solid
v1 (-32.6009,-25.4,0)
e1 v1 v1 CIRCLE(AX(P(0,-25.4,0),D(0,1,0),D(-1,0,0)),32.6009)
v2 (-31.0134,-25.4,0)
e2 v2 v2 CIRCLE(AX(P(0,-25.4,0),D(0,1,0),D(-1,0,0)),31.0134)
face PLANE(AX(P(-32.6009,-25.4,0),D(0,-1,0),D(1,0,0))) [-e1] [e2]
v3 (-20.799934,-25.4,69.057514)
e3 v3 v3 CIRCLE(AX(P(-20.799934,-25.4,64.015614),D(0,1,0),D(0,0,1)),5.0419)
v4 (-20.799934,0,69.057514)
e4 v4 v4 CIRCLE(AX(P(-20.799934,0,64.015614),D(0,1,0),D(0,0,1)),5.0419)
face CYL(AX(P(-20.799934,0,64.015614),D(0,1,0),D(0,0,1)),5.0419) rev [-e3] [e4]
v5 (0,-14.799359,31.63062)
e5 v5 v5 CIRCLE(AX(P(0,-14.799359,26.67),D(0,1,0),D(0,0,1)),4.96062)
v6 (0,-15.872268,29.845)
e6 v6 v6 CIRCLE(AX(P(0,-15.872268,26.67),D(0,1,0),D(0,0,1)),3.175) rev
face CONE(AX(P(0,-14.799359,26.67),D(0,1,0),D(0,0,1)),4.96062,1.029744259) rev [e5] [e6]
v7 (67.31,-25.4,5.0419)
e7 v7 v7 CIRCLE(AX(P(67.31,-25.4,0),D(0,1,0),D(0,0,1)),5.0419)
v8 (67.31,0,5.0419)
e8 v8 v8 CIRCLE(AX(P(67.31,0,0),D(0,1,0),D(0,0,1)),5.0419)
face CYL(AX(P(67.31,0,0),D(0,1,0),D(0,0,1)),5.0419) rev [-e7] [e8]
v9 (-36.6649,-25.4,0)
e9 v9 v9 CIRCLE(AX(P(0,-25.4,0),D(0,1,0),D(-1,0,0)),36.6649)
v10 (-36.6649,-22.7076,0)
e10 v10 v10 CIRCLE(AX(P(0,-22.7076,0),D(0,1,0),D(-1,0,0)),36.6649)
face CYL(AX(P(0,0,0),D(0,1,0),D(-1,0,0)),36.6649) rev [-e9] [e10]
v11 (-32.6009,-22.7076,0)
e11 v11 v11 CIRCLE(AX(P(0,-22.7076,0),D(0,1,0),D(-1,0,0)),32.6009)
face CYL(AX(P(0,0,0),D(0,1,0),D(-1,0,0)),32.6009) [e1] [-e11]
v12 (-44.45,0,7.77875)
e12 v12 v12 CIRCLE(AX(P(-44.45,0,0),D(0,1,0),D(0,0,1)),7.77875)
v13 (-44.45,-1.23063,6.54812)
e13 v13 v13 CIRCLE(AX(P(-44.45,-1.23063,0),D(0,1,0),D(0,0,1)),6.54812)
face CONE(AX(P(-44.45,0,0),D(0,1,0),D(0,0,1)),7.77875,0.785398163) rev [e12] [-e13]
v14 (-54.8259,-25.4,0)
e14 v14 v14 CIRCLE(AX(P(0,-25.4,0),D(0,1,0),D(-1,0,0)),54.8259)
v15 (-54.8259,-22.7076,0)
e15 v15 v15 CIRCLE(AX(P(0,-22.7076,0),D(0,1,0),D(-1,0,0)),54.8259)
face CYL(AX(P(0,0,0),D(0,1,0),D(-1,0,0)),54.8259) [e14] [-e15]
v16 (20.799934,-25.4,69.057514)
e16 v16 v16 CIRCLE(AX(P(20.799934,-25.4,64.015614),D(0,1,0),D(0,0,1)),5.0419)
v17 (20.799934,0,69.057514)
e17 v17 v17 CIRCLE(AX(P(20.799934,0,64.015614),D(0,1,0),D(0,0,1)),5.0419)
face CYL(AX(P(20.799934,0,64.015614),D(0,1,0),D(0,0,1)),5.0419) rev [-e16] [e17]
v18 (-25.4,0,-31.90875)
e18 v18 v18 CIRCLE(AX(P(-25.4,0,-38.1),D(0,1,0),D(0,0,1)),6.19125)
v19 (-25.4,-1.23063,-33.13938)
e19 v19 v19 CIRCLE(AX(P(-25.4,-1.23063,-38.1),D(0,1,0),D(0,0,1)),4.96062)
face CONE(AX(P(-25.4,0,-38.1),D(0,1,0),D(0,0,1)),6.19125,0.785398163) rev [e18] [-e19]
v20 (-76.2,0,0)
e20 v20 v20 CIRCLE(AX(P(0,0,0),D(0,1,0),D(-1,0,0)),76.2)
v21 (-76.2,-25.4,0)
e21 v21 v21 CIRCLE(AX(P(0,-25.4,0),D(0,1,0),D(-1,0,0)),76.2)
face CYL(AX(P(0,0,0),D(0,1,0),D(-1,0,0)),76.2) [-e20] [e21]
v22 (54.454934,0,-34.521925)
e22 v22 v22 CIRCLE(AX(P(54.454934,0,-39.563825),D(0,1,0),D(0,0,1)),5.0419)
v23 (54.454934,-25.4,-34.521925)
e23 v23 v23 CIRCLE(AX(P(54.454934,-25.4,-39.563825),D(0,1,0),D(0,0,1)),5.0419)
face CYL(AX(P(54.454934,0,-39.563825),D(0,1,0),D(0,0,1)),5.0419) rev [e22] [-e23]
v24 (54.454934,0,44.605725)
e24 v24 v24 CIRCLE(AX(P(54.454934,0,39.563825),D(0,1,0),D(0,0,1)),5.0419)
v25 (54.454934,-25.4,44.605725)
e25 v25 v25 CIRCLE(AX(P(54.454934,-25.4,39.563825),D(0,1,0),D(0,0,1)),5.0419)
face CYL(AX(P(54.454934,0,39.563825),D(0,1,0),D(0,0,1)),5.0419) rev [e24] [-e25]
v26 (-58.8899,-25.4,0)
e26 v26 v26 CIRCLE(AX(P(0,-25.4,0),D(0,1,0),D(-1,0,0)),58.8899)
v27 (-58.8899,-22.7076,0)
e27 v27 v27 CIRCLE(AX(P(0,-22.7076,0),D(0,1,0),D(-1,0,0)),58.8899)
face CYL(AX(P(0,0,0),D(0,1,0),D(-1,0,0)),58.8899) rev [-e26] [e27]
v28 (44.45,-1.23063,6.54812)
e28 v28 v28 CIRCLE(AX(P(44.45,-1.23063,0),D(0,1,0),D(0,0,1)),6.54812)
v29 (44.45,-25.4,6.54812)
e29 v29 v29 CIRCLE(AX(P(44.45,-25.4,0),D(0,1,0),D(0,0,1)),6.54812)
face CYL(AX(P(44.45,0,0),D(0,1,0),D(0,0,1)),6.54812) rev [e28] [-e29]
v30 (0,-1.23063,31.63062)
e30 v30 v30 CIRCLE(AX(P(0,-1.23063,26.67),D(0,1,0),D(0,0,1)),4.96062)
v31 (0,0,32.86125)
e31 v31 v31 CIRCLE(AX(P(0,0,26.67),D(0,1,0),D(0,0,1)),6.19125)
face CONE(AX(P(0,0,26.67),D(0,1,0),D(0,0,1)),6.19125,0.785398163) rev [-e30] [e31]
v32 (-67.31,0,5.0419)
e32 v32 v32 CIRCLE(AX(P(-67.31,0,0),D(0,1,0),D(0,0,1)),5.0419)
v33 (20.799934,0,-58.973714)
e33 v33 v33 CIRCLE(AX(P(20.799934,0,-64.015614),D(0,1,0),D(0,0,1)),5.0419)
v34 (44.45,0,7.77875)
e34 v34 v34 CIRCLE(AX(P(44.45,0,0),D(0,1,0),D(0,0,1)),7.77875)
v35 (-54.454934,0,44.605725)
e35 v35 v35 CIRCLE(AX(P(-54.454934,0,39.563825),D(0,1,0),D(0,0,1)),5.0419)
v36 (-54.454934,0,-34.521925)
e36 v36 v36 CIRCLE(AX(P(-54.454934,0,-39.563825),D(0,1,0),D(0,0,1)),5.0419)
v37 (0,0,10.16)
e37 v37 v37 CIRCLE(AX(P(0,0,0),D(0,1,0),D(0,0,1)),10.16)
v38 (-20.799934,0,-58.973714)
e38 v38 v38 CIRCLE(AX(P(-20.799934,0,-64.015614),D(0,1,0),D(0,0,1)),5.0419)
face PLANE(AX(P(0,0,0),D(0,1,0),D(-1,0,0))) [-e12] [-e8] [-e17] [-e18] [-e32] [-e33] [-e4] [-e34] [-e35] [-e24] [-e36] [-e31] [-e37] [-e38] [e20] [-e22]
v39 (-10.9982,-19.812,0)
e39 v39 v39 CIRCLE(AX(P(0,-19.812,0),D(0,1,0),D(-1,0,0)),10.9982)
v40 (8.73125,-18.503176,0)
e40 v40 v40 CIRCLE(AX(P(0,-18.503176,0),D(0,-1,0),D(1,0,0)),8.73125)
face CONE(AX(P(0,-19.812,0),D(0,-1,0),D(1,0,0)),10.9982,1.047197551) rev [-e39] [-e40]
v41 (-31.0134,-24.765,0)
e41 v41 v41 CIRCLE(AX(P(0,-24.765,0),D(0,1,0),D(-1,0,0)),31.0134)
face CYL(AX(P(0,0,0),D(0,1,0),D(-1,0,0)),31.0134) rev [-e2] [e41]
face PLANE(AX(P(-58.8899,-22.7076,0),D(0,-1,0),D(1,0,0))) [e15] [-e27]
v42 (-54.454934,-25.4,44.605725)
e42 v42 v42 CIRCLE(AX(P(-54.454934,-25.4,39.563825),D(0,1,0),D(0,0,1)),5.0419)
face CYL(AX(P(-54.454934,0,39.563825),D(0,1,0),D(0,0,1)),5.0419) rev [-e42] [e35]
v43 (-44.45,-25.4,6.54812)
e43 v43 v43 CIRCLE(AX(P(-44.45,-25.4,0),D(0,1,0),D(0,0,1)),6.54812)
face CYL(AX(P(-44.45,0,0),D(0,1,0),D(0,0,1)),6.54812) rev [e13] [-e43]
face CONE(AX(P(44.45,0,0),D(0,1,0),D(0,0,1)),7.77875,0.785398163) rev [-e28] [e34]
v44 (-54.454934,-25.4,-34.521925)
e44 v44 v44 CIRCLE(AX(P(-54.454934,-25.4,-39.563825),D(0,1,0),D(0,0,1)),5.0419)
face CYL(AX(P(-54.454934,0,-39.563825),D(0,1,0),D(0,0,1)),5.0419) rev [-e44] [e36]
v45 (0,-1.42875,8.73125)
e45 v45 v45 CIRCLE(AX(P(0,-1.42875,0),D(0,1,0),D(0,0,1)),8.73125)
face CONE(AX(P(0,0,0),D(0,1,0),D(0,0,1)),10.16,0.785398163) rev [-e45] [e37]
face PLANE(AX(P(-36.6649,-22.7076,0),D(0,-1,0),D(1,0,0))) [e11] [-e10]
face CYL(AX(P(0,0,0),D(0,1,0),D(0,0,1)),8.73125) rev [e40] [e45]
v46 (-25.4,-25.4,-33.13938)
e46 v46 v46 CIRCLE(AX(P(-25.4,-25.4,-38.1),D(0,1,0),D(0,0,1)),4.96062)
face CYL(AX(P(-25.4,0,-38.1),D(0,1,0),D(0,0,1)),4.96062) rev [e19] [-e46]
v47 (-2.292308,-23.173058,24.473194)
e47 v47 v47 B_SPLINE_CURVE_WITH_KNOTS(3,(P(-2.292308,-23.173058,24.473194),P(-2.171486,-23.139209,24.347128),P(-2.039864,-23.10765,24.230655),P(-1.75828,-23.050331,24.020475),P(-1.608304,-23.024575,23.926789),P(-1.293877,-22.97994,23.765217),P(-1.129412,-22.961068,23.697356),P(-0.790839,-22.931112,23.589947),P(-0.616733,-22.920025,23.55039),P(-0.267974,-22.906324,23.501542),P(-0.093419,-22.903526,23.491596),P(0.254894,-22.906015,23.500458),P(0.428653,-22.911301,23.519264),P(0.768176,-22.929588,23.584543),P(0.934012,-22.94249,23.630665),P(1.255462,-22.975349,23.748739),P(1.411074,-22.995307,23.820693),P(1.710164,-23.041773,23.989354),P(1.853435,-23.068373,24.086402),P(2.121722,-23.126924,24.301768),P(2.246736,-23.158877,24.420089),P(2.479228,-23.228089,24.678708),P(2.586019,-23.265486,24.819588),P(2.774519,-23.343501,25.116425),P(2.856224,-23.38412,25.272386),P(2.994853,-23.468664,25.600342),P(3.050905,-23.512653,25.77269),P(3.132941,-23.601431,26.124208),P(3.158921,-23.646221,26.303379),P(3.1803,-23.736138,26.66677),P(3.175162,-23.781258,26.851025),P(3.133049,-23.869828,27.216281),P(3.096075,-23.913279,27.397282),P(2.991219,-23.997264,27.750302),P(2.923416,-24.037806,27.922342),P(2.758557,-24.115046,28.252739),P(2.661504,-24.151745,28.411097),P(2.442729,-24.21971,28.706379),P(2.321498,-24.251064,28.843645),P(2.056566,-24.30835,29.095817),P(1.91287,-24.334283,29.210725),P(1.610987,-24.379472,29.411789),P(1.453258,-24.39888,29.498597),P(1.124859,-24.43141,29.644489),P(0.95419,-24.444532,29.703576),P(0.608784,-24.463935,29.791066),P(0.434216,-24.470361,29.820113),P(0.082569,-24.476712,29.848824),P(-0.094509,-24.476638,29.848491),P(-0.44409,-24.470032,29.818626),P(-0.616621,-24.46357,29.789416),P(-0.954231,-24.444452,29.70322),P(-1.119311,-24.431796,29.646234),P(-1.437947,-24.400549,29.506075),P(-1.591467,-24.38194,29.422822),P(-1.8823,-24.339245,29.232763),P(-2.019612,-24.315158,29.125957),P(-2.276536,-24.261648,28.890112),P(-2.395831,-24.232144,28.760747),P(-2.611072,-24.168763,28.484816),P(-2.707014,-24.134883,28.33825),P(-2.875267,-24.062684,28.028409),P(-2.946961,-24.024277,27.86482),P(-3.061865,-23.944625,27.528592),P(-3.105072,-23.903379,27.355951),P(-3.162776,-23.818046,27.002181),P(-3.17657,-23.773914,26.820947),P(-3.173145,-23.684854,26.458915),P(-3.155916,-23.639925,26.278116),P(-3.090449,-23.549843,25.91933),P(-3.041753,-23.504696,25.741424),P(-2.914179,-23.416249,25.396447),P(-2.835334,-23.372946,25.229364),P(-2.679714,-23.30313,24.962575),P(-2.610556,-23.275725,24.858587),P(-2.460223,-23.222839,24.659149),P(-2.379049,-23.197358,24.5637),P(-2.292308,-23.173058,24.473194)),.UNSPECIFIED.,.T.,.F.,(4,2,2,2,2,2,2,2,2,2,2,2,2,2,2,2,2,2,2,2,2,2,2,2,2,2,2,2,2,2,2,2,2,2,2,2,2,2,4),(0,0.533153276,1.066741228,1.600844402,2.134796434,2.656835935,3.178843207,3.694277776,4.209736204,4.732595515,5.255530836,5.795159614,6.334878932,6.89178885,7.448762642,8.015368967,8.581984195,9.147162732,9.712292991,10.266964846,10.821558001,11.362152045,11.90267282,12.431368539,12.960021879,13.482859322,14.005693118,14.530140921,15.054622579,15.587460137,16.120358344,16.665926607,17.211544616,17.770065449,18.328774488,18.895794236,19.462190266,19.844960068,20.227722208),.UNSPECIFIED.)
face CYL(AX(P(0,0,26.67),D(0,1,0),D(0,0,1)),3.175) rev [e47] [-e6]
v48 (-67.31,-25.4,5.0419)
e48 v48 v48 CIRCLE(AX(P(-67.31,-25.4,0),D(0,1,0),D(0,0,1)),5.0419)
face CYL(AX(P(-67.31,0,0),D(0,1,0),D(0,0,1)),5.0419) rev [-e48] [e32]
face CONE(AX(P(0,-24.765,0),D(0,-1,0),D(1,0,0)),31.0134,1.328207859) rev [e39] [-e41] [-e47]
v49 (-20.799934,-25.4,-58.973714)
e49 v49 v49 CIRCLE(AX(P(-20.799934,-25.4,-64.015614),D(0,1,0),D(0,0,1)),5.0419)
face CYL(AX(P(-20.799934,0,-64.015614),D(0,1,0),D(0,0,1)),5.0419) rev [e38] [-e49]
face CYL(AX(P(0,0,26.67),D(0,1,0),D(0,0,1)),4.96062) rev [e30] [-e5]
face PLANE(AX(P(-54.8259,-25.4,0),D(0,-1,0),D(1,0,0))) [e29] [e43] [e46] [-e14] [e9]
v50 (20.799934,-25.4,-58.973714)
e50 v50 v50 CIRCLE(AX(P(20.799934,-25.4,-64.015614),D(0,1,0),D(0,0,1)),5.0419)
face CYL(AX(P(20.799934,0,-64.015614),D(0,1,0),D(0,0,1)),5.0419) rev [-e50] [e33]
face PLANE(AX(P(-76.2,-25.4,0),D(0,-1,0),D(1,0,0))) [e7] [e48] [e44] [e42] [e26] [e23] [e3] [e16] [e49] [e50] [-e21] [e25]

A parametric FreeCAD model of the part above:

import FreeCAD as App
import Part
import Sketcher

V = App.Vector
Q = App.Units.Quantity


def add_polygon(sketch, points):
    """Adds a closed chain of lines whose ends are joined by coincident constraints."""
    first, n = sketch.GeometryCount, len(points)
    for a, b in zip(points, points[1:] + points[:1]):
        sketch.addGeometry(Part.LineSegment(App.Vector(*a, 0), App.Vector(*b, 0)), False)
    for i in range(n):
        sketch.addConstraint(Sketcher.Constraint("Coincident", first + i, 2, first + (i + 1) % n, 1))

doc = App.newDocument("Part")
params = doc.addObject("Spreadsheet::Sheet", "Params")
for row, (alias, value) in enumerate([
    ("sketch1_width", "3 in"),
    ("sketch1_height", "1 in"),
    ("sketch1_width2", "0.16 in"),
    ("sketch1_width3", "0.715 in"),
    ("sketch1_width4", "0.0625 in"),
    ("revolution_angle", "360 deg"),
    ("sketch2_diameter", "0.6875 in"),
    ("hole_diameter", "0.6875 in"),
    ("hole_csink_diameter", "0.8 in"),
    ("hole2_diameter", "0.5156 in"),
    ("hole2_csink_diameter", "0.6125 in"),
    ("sketch4_diameter", "0.397 in"),
    ("hole3_diameter", "0.397 in"),
    ("hole4_diameter", "0.3906 in"),
    ("hole4_depth", "14.799359 mm"),
    ("hole4_csink_diameter", "0.4875 in"),
    ("hole5_diameter", "0.3906 in"),
    ("hole5_csink_diameter", "0.4875 in"),
    ("sketch7_diameter", "0.25 in"),
    ("hole6_diameter", "0.25 in"),
    ("hole6_depth", "72.260268 mm"),
], start=1):
    params.set(f"A{row}", alias)
    params.set(f"B{row}", "=" + value)
    params.setAlias(f"B{row}", alias)

body = doc.addObject("PartDesign::Body", "Body")

sketch1 = body.newObject("Sketcher::SketchObject", "Sketch")
sketch1.AttachmentSupport = (doc.getObject("XY_Plane"), [""])
sketch1.MapMode = "FlatFace"
add_polygon(sketch1, [(0, 0), (-76.2, 0), (-76.2, -25.4), (-58.9, -25.4), (-58.9, -22.7), (-54.8, -22.7), (-54.8, -25.4), (-36.7, -25.4), (-36.7, -22.7), (-32.6, -22.7), (-32.6, -25.4), (-31, -25.4), (-31, -24.8), (-11, -19.8), (0, -13.5)])
sketch1.addConstraint(Sketcher.Constraint("Horizontal", 0))
sketch1.addConstraint(Sketcher.Constraint("Vertical", 1))
sketch1.addConstraint(Sketcher.Constraint("Horizontal", 2))
sketch1.addConstraint(Sketcher.Constraint("Vertical", 3))
sketch1.addConstraint(Sketcher.Constraint("Horizontal", 4))
sketch1.addConstraint(Sketcher.Constraint("Vertical", 5))
sketch1.addConstraint(Sketcher.Constraint("Horizontal", 6))
sketch1.addConstraint(Sketcher.Constraint("Vertical", 7))
sketch1.addConstraint(Sketcher.Constraint("Horizontal", 8))
sketch1.addConstraint(Sketcher.Constraint("Vertical", 9))
sketch1.addConstraint(Sketcher.Constraint("Horizontal", 10))
sketch1.addConstraint(Sketcher.Constraint("Vertical", 11))
sketch1.addConstraint(Sketcher.Constraint("Vertical", 14))
sketch1.addConstraint(Sketcher.Constraint("Coincident", 14, 2, -1, 1))
sketch1.addConstraint(Sketcher.Constraint("Horizontal", 2, 2, 5, 2))
sketch1.addConstraint(Sketcher.Constraint("Horizontal", 4, 2, 7, 2))
sketch1.addConstraint(Sketcher.Constraint("Horizontal", 6, 2, 9, 2))
sketch1.addConstraint(Sketcher.Constraint("Equal", 4, 8))
sketch1.addConstraint(Sketcher.Constraint("DistanceX", 0, 2, 0, 1, Q("3 in")))
sketch1.addConstraint(Sketcher.Constraint("DistanceY", 1, 2, 1, 1, Q("1 in")))
sketch1.addConstraint(Sketcher.Constraint("Angle", 13, Q("30 deg")))
sketch1.addConstraint(Sketcher.Constraint("DistanceX", 4, 1, 4, 2, Q("0.16 in")))
sketch1.addConstraint(Sketcher.Constraint("DistanceX", 6, 1, 6, 2, Q("0.715 in")))
sketch1.addConstraint(Sketcher.Constraint("DistanceX", 10, 1, 10, 2, Q("0.0625 in")))
sketch1.addConstraint(Sketcher.Constraint("DistanceY", 3, 1, 3, 2, Q("0.106 in")))
sketch1.addConstraint(Sketcher.Constraint("DistanceY", 11, 1, 11, 2, Q("0.025 in")))
sketch1.addConstraint(Sketcher.Constraint("DistanceY", 12, 2, -1, 1, Q("0.78 in")))
sketch1.addConstraint(Sketcher.Constraint("DistanceX", 2, 1, 2, 2, Q("0.6815 in")))
sketch1.addConstraint(Sketcher.Constraint("DistanceX", 12, 2, -1, 1, Q("0.433 in")))
sketch1.setExpression("Constraints[33]", "Params.sketch1_width")
sketch1.setExpression("Constraints[34]", "Params.sketch1_height")
sketch1.setExpression("Constraints[36]", "Params.sketch1_width2")
sketch1.setExpression("Constraints[37]", "Params.sketch1_width3")
sketch1.setExpression("Constraints[38]", "Params.sketch1_width4")
revolution = body.newObject("PartDesign::Revolution", "Revolution")
revolution.Profile = sketch1
revolution.ReferenceAxis = (sketch1, ["V_Axis"])
revolution.setExpression("Angle", "Params.revolution_angle")

sketch2 = body.newObject("Sketcher::SketchObject", "Sketch001")
sketch2.AttachmentSupport = (doc.getObject("XZ_Plane"), [""])
sketch2.MapMode = "FlatFace"
sketch2.addGeometry(Part.Circle(V(0, 0, 0), V(0, 0, 1), 9), False)
sketch2.addConstraint(Sketcher.Constraint("Coincident", 0, 3, -1, 1))
sketch2.addConstraint(Sketcher.Constraint("Diameter", 0, Q("0.6875 in")))
sketch2.setExpression("Constraints[1]", "Params.sketch2_diameter")
doc.recompute()
hole = body.newObject("PartDesign::Hole", "Hole")
hole.Profile = sketch2
hole.ThreadType = "None"
hole.setExpression("Diameter", "Params.hole_diameter")
hole.DepthType = "ThroughAll"
hole.HoleCutType = "Countersink"
hole.setExpression("HoleCutDiameter", "Params.hole_csink_diameter")
hole.HoleCutCountersinkAngle = 90
hole.Reversed = True

sketch3 = body.newObject("Sketcher::SketchObject", "Sketch002")
sketch3.AttachmentSupport = (doc.getObject("XZ_Plane"), [""])
sketch3.MapMode = "FlatFace"
sketch3.addGeometry(Part.Circle(V(-44, 0, 0), V(0, 0, 1), 7), False)
sketch3.addGeometry(Part.Circle(V(44, 0, 0), V(0, 0, 1), 7), False)
sketch3.addConstraint(Sketcher.Constraint("Equal", 0, 1))
sketch3.addConstraint(Sketcher.Constraint("Symmetric", 0, 3, 1, 3, -1, 1))
sketch3.addConstraint(Sketcher.Constraint("PointOnObject", 0, 3, -1))
sketch3.addConstraint(Sketcher.Constraint("Diameter", 0, Q("0.5156 in")))
sketch3.addConstraint(Sketcher.Constraint("DistanceX", 0, 3, 1, 3, Q("3.5 in")))
doc.recompute()
hole2 = body.newObject("PartDesign::Hole", "Hole001")
hole2.Profile = sketch3
hole2.ThreadType = "None"
hole2.setExpression("Diameter", "Params.hole2_diameter")
hole2.DepthType = "ThroughAll"
hole2.HoleCutType = "Countersink"
hole2.setExpression("HoleCutDiameter", "Params.hole2_csink_diameter")
hole2.HoleCutCountersinkAngle = 90
hole2.Reversed = True

sketch4 = body.newObject("Sketcher::SketchObject", "Sketch003")
sketch4.AttachmentSupport = (doc.getObject("XZ_Plane"), [""])
sketch4.MapMode = "FlatFace"
sketch4.addGeometry(Part.Circle(V(67, 0, 0), V(0, 0, 1), 5), False)
sketch4.addConstraint(Sketcher.Constraint("PointOnObject", 0, 3, -1))
sketch4.addConstraint(Sketcher.Constraint("Diameter", 0, Q("0.397 in")))
sketch4.addConstraint(Sketcher.Constraint("DistanceX", -1, 1, 0, 3, Q("2.65 in")))
sketch4.setExpression("Constraints[1]", "Params.sketch4_diameter")
doc.recompute()
hole3 = body.newObject("PartDesign::Hole", "Hole002")
hole3.Profile = sketch4
hole3.ThreadType = "None"
hole3.setExpression("Diameter", "Params.hole3_diameter")
hole3.DepthType = "ThroughAll"
hole3.Reversed = True
doc.recompute()

polarpattern = body.newObject("PartDesign::PolarPattern", "PolarPattern")
polarpattern.Originals = [hole3]
polarpattern.Axis = (doc.getObject("Y_Axis"), [""])
polarpattern.Angle = 360
polarpattern.Occurrences = 10
body.Tip = polarpattern

sketch5 = body.newObject("Sketcher::SketchObject", "Sketch004")
sketch5.AttachmentSupport = (doc.getObject("XZ_Plane"), [""])
sketch5.MapMode = "FlatFace"
sketch5.addGeometry(Part.Circle(V(0, 26.7, 0), V(0, 0, 1), 5), False)
sketch5.addConstraint(Sketcher.Constraint("PointOnObject", 0, 3, -2))
sketch5.addConstraint(Sketcher.Constraint("Diameter", 0, Q("0.3906 in")))
sketch5.addConstraint(Sketcher.Constraint("DistanceY", -1, 1, 0, 3, Q("1.05 in")))
doc.recompute()
hole4 = body.newObject("PartDesign::Hole", "Hole003")
hole4.Profile = sketch5
hole4.ThreadType = "None"
hole4.setExpression("Diameter", "Params.hole4_diameter")
hole4.DepthType = "Dimension"
hole4.setExpression("Depth", "Params.hole4_depth")
hole4.DrillPoint = "Angled"
hole4.DrillPointAngle = 118
hole4.HoleCutType = "Countersink"
hole4.setExpression("HoleCutDiameter", "Params.hole4_csink_diameter")
hole4.HoleCutCountersinkAngle = 90
hole4.Reversed = True

sketch6 = body.newObject("Sketcher::SketchObject", "Sketch005")
sketch6.AttachmentSupport = (doc.getObject("XZ_Plane"), [""])
sketch6.MapMode = "FlatFace"
sketch6.addGeometry(Part.Circle(V(-25.4, -38.1, 0), V(0, 0, 1), 5), False)
sketch6.addConstraint(Sketcher.Constraint("DistanceX", 0, 3, -1, 1, Q("1 in")))
sketch6.addConstraint(Sketcher.Constraint("Diameter", 0, Q("0.3906 in")))
sketch6.addConstraint(Sketcher.Constraint("DistanceY", 0, 3, -1, 1, Q("1.5 in")))
doc.recompute()
hole5 = body.newObject("PartDesign::Hole", "Hole004")
hole5.Profile = sketch6
hole5.ThreadType = "None"
hole5.setExpression("Diameter", "Params.hole5_diameter")
hole5.DepthType = "ThroughAll"
hole5.HoleCutType = "Countersink"
hole5.setExpression("HoleCutDiameter", "Params.hole5_csink_diameter")
hole5.HoleCutCountersinkAngle = 90
hole5.Reversed = True

sketch7 = body.newObject("Sketcher::SketchObject", "Sketch006")
sketch7.AttachmentSupport = (doc.getObject("XZ_Plane"), [""])
sketch7.MapMode = "FlatFace"
sketch7.addGeometry(Part.Circle(V(0, 26.7, 0), V(0, 0, 1), 3.2), False)
sketch7.addConstraint(Sketcher.Constraint("PointOnObject", 0, 3, -2))
sketch7.addConstraint(Sketcher.Constraint("Diameter", 0, Q("0.25 in")))
sketch7.addConstraint(Sketcher.Constraint("DistanceY", -1, 1, 0, 3, Q("1.05 in")))
sketch7.setExpression("Constraints[1]", "Params.sketch7_diameter")
doc.recompute()
hole6 = body.newObject("PartDesign::Hole", "Hole005")
hole6.Profile = sketch7
hole6.ThreadType = "None"
hole6.setExpression("Diameter", "Params.hole6_diameter")
hole6.DepthType = "Dimension"
hole6.setExpression("Depth", "Params.hole6_depth")
hole6.DrillPoint = "Angled"
hole6.DrillPointAngle = 118
hole6.Reversed = True

doc.recompute()
